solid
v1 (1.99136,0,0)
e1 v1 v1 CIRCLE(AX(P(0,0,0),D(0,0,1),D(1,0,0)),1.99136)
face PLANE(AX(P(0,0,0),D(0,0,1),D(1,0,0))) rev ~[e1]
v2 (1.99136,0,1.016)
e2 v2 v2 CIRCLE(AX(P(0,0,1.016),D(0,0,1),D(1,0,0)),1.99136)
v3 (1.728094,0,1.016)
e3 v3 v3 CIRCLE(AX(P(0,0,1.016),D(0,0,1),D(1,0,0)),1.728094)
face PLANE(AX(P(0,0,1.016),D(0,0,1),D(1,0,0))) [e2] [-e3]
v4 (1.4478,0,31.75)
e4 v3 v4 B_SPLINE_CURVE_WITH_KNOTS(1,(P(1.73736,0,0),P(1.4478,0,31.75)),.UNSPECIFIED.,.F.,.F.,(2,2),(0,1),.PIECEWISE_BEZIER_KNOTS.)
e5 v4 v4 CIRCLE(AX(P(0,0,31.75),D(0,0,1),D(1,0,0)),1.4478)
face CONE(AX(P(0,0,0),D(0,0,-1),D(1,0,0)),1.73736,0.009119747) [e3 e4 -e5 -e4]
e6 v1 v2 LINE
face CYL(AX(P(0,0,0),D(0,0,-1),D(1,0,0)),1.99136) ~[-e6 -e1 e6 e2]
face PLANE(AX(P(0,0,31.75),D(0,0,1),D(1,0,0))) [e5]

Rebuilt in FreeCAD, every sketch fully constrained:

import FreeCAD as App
import Part
import Sketcher

V = App.Vector
Q = App.Units.Quantity

doc = App.newDocument("Part")
body = doc.addObject("PartDesign::Body", "Body")

# Sketch on XY plane
sketch1 = body.newObject("Sketcher::SketchObject", "Sketch")
sketch1.AttachmentSupport = (doc.getObject("XY_Plane"), [""])
sketch1.MapMode = "FlatFace"
sketch1.addGeometry(Part.Circle(V(0, 0, 0), V(0, 0, 1), 1.7), False)
sketch1.addConstraint(Sketcher.Constraint("Coincident", 0, 3, -1, 1))
sketch1.addConstraint(Sketcher.Constraint("Diameter", 0, Q("0.1368 in")))

# Sketch on XY plane
sketch2 = body.newObject("Sketcher::SketchObject", "Sketch001")
sketch2.AttachmentSupport = (doc.getObject("XY_Plane"), [""])
sketch2.MapMode = "FlatFace"
sketch2.AttachmentOffset = App.Placement(V(0, 0, 1.25 * 25.4), App.Rotation())
sketch2.addGeometry(Part.Circle(V(0, 0, 0), V(0, 0, 1), 1.4), False)
sketch2.addConstraint(Sketcher.Constraint("Coincident", 0, 3, -1, 1))
sketch2.addConstraint(Sketcher.Constraint("Diameter", 0, Q("0.114 in")))

additiveloft = body.newObject("PartDesign::AdditiveLoft", "AdditiveLoft")
additiveloft.Profile = sketch1
additiveloft.Sections = [sketch2]

# Sketch on XY plane
sketch3 = body.newObject("Sketcher::SketchObject", "Sketch002")
sketch3.AttachmentSupport = (doc.getObject("XY_Plane"), [""])
sketch3.MapMode = "FlatFace"
sketch3.addGeometry(Part.Circle(V(0, 0, 0), V(0, 0, 1), 2), False)
sketch3.addConstraint(Sketcher.Constraint("Coincident", 0, 3, -1, 1))
sketch3.addConstraint(Sketcher.Constraint("Diameter", 0, Q("0.1568 in")))
pad1 = body.newObject("PartDesign::Pad", "Pad")
pad1.Profile = sketch3
pad1.Length = Q("0.04 in")

doc.recompute()
